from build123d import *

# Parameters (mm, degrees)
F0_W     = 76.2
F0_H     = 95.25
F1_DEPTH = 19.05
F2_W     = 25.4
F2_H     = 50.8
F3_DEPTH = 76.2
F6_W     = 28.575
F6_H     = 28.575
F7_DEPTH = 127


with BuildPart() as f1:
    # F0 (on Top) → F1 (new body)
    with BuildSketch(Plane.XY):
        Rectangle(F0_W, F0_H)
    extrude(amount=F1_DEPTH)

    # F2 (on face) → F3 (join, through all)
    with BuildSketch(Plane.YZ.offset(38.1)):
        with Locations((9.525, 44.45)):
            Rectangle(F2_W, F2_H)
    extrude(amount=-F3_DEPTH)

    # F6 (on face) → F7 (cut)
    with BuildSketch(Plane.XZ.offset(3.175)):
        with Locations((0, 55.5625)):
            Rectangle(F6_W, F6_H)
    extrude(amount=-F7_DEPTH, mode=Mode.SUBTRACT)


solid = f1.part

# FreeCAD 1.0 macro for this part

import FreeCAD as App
import Part
import Sketcher

V = App.Vector
Q = App.Units.Quantity

doc = App.newDocument("Part")
params = doc.addObject("Spreadsheet::Sheet", "Params")
for row, (alias, value) in enumerate([
    ("sketch1_width", "3 in"),
    ("sketch1_height", "3.75 in"),
    ("pad1_length", "0.75 in"),
    ("sketch2_width", "1 in"),
    ("sketch2_height", "2 in"),
    ("pad2_length", "3 in"),
    ("sketch3_width", "1.125 in"),
    ("pocket1_length", "5 in"),
], start=1):
    params.set(f"A{row}", alias)
    params.set(f"B{row}", "=" + value)
    params.setAlias(f"B{row}", alias)

body = doc.addObject("PartDesign::Body", "Body")

sketch1 = doc.addObject("Sketcher::SketchObject", "Sketch")
body.addObject(sketch1)
sketch1.AttachmentSupport = (doc.XY_Plane, [""])
sketch1.MapMode = "FlatFace"
sketch1.addGeometry(Part.LineSegment(V(-38.1, 47.625, 0), V(-38.1, -47.625, 0)), False)
sketch1.addGeometry(Part.LineSegment(V(-38.1, -47.625, 0), V(38.1, -47.625, 0)), False)
sketch1.addGeometry(Part.LineSegment(V(38.1, -47.625, 0), V(38.1, 47.625, 0)), False)
sketch1.addGeometry(Part.LineSegment(V(38.1, 47.625, 0), V(-38.1, 47.625, 0)), False)
sketch1.addConstraint(Sketcher.Constraint("Coincident", 0, 2, 1, 1))
sketch1.addConstraint(Sketcher.Constraint("Coincident", 1, 2, 2, 1))
sketch1.addConstraint(Sketcher.Constraint("Coincident", 2, 2, 3, 1))
sketch1.addConstraint(Sketcher.Constraint("Coincident", 3, 2, 0, 1))
sketch1.addConstraint(Sketcher.Constraint("Vertical", 0))
sketch1.addConstraint(Sketcher.Constraint("Horizontal", 1))
sketch1.addConstraint(Sketcher.Constraint("Vertical", 2))
sketch1.addConstraint(Sketcher.Constraint("Horizontal", 3))
sketch1.addConstraint(Sketcher.Constraint("Symmetric", 0, 2, 2, 2, -1, 1))
sketch1.addConstraint(Sketcher.Constraint("DistanceX", 1, 1, 1, 2, Q("3 in")))
sketch1.addConstraint(Sketcher.Constraint("DistanceY", 0, 2, 0, 1, Q("3.75 in")))
sketch1.setExpression("Constraints[9]", "Params.sketch1_width")
sketch1.setExpression("Constraints[10]", "Params.sketch1_height")
pad1 = doc.addObject("PartDesign::Pad", "Pad")
body.addObject(pad1)
pad1.Profile = sketch1
pad1.setExpression("Length", "Params.pad1_length")

sketch2 = doc.addObject("Sketcher::SketchObject", "Sketch001")
body.addObject(sketch2)
sketch2.AttachmentSupport = (doc.YZ_Plane, [""])
sketch2.MapMode = "FlatFace"
sketch2.AttachmentOffset = App.Placement(V(0, 0, 1.5 * 25.4), App.Rotation())
sketch2.addGeometry(Part.LineSegment(V(-3.175, 69.85, 0), V(-3.175, 19.05, 0)), False)
sketch2.addGeometry(Part.LineSegment(V(-3.175, 19.05, 0), V(22.225, 19.05, 0)), False)
sketch2.addGeometry(Part.LineSegment(V(22.225, 19.05, 0), V(22.225, 69.85, 0)), False)
sketch2.addGeometry(Part.LineSegment(V(22.225, 69.85, 0), V(-3.175, 69.85, 0)), False)
sketch2.addConstraint(Sketcher.Constraint("Coincident", 0, 2, 1, 1))
sketch2.addConstraint(Sketcher.Constraint("Coincident", 1, 2, 2, 1))
sketch2.addConstraint(Sketcher.Constraint("Coincident", 2, 2, 3, 1))
sketch2.addConstraint(Sketcher.Constraint("Coincident", 3, 2, 0, 1))
sketch2.addConstraint(Sketcher.Constraint("Vertical", 0))
sketch2.addConstraint(Sketcher.Constraint("Horizontal", 1))
sketch2.addConstraint(Sketcher.Constraint("Vertical", 2))
sketch2.addConstraint(Sketcher.Constraint("Horizontal", 3))
sketch2.addConstraint(Sketcher.Constraint("DistanceX", 1, 1, 1, 2, Q("1 in")))
sketch2.addConstraint(Sketcher.Constraint("DistanceY", 0, 2, 0, 1, Q("2 in")))
sketch2.addConstraint(Sketcher.Constraint("DistanceY", -1, 1, 0, 2, Q("0.75 in")))
sketch2.addConstraint(Sketcher.Constraint("DistanceX", 0, 2, -1, 1, Q("0.125 in")))
sketch2.setExpression("Constraints[8]", "Params.sketch2_width")
sketch2.setExpression("Constraints[9]", "Params.sketch2_height")
pad2 = doc.addObject("PartDesign::Pad", "Pad001")
body.addObject(pad2)
pad2.Profile = sketch2
pad2.setExpression("Length", "Params.pad2_length")
pad2.Reversed = True

sketch3 = doc.addObject("Sketcher::SketchObject", "Sketch002")
body.addObject(sketch3)
sketch3.AttachmentSupport = (doc.XZ_Plane, [""])
sketch3.MapMode = "FlatFace"
sketch3.AttachmentOffset = App.Placement(V(0, 0, 0.125 * 25.4), App.Rotation())
sketch3.addGeometry(Part.LineSegment(V(-14.2875, 69.85, 0), V(-14.2875, 41.275, 0)), False)
sketch3.addGeometry(Part.LineSegment(V(-14.2875, 41.275, 0), V(14.2875, 41.275, 0)), False)
sketch3.addGeometry(Part.LineSegment(V(14.2875, 41.275, 0), V(14.2875, 69.85, 0)), False)
sketch3.addGeometry(Part.LineSegment(V(14.2875, 69.85, 0), V(-14.2875, 69.85, 0)), False)
sketch3.addConstraint(Sketcher.Constraint("Coincident", 0, 2, 1, 1))
sketch3.addConstraint(Sketcher.Constraint("Coincident", 1, 2, 2, 1))
sketch3.addConstraint(Sketcher.Constraint("Coincident", 2, 2, 3, 1))
sketch3.addConstraint(Sketcher.Constraint("Coincident", 3, 2, 0, 1))
sketch3.addConstraint(Sketcher.Constraint("Vertical", 0))
sketch3.addConstraint(Sketcher.Constraint("Horizontal", 1))
sketch3.addConstraint(Sketcher.Constraint("Vertical", 2))
sketch3.addConstraint(Sketcher.Constraint("Horizontal", 3))
sketch3.addConstraint(Sketcher.Constraint("Equal", 3, 0))
sketch3.addConstraint(Sketcher.Constraint("DistanceX", 1, 1, 1, 2, Q("1.125 in")))
sketch3.addConstraint(Sketcher.Constraint("DistanceY", -1, 1, 2, 2, Q("2.75 in")))
sketch3.addConstraint(Sketcher.Constraint("DistanceX", 0, 2, -1, 1, Q("0.5625 in")))
sketch3.setExpression("Constraints[9]", "Params.sketch3_width")
pocket1 = doc.addObject("PartDesign::Pocket", "Pocket")
body.addObject(pocket1)
pocket1.Profile = sketch3
pocket1.setExpression("Length", "Params.pocket1_length")

doc.recompute()
